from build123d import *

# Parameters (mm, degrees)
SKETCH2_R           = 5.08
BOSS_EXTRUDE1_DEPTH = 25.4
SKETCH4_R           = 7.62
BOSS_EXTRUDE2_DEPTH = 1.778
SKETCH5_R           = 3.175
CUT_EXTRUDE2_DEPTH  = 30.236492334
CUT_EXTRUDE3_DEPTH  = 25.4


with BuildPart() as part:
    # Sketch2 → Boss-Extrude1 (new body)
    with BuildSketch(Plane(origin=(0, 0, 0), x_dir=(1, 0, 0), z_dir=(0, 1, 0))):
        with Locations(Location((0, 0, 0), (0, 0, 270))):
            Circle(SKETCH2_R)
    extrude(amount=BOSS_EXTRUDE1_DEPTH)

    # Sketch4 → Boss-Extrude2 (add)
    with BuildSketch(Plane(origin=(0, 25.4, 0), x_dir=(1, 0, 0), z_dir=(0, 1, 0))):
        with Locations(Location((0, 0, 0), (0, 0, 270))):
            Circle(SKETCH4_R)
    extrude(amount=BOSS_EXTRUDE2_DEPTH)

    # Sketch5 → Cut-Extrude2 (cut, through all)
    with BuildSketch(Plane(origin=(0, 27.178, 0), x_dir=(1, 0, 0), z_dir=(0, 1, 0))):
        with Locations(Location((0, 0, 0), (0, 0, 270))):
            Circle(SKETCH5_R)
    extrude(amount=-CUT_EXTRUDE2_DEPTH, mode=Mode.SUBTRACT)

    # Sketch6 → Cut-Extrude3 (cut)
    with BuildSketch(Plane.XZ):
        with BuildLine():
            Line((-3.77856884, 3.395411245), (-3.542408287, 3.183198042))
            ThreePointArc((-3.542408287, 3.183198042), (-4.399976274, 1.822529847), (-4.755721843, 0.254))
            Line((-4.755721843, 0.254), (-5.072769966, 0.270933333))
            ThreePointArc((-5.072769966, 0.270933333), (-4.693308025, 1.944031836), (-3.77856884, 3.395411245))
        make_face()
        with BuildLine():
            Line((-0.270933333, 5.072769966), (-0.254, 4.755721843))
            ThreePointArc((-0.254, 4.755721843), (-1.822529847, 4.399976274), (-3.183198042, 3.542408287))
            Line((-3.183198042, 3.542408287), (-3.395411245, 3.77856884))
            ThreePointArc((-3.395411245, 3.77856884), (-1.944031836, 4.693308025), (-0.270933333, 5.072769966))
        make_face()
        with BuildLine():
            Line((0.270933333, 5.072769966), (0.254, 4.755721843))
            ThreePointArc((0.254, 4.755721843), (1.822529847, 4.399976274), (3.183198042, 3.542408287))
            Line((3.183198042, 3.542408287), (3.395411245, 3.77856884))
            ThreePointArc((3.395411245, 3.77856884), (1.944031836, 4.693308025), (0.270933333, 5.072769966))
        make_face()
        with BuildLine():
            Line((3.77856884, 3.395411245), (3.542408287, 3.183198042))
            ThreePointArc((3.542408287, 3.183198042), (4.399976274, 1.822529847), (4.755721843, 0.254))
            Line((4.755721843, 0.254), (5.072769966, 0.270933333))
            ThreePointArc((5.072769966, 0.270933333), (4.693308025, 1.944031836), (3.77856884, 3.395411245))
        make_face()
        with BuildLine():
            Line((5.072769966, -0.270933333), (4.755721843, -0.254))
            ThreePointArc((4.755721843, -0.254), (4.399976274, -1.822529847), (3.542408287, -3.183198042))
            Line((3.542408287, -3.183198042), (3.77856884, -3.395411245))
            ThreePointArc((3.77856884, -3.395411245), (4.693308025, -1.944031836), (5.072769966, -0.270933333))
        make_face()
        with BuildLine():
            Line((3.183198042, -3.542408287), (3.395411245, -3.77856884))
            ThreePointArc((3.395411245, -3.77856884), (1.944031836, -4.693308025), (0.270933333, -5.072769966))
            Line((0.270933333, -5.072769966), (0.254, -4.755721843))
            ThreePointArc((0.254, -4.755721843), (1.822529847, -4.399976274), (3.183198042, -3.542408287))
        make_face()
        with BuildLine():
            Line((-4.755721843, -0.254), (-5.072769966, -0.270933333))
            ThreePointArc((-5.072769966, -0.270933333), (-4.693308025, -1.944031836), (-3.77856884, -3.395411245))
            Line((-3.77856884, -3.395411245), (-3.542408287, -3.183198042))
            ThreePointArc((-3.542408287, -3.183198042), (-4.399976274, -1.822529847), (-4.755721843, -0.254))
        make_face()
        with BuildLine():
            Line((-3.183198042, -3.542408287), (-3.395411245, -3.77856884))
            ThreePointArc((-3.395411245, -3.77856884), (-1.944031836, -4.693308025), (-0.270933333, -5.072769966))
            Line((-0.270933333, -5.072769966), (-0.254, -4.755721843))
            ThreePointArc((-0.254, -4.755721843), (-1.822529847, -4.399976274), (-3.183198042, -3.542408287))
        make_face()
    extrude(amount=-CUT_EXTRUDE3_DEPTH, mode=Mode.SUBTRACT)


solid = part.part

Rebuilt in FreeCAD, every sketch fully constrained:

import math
import FreeCAD as App
import Part
import Sketcher
Q = App.Units.Quantity

doc = App.newDocument("Part")
body = doc.addObject("PartDesign::Body", "Body")

# Sketch on XZ plane
sketch1 = body.newObject("Sketcher::SketchObject", "Sketch")
sketch1.AttachmentSupport = (doc.getObject("XZ_Plane"), [""])
sketch1.MapMode = "FlatFace"
sketch1.addGeometry(Part.Circle(App.Vector(0, 0, 0), App.Vector(0, 0, 1), 5), False)
sketch1.addConstraint(Sketcher.Constraint("Coincident", 0, 3, -1, 1))
sketch1.addConstraint(Sketcher.Constraint("Diameter", 0, Q("0.4 in")))
pad1 = body.newObject("PartDesign::Pad", "Pad")
pad1.Profile = sketch1
pad1.Length = Q("1 in")
pad1.Reversed = True

# Sketch on XZ plane
sketch2 = body.newObject("Sketcher::SketchObject", "Sketch001")
sketch2.AttachmentSupport = (doc.getObject("XZ_Plane"), [""])
sketch2.MapMode = "FlatFace"
sketch2.AttachmentOffset = App.Placement(App.Vector(0, 0, -1 * 25.4), App.Rotation())
sketch2.addGeometry(Part.Circle(App.Vector(0, 0, 0), App.Vector(0, 0, 1), 8), False)
sketch2.addConstraint(Sketcher.Constraint("Coincident", 0, 3, -1, 1))
sketch2.addConstraint(Sketcher.Constraint("Diameter", 0, Q("0.6 in")))
pad2 = body.newObject("PartDesign::Pad", "Pad001")
pad2.Profile = sketch2
pad2.Length = Q("0.07 in")
pad2.Reversed = True

# Sketch on XZ plane
sketch3 = body.newObject("Sketcher::SketchObject", "Sketch002")
sketch3.AttachmentSupport = (doc.getObject("XZ_Plane"), [""])
sketch3.MapMode = "FlatFace"
sketch3.AttachmentOffset = App.Placement(App.Vector(0, 0, -1.07 * 25.4), App.Rotation())
sketch3.addGeometry(Part.Circle(App.Vector(0, 0, 0), App.Vector(0, 0, 1), 3.2), False)
sketch3.addConstraint(Sketcher.Constraint("Coincident", 0, 3, -1, 1))
sketch3.addConstraint(Sketcher.Constraint("Diameter", 0, Q("0.25 in")))
pocket1 = body.newObject("PartDesign::Pocket", "Pocket")
pocket1.Profile = sketch3
pocket1.Type = "ThroughAll"
pocket1.Reversed = True

# Sketch on XZ plane
sketch4 = body.newObject("Sketcher::SketchObject", "Sketch003")
sketch4.AttachmentSupport = (doc.getObject("XZ_Plane"), [""])
sketch4.MapMode = "FlatFace"
sketch4.addGeometry(Part.LineSegment(App.Vector(-3.54, 3.18, 0), App.Vector(-3.78, 3.4, 0)), False)
sketch4.addGeometry(Part.ArcOfCircle(Part.Circle(App.Vector(0, 0, 0), App.Vector(0, 0, 1), 5.08), math.radians(138), math.radians(177)), False)
sketch4.addGeometry(Part.LineSegment(App.Vector(-5.07, 0.27, 0), App.Vector(-4.76, 0.25, 0)), False)
sketch4.addGeometry(Part.ArcOfCircle(Part.Circle(App.Vector(0, 0, 0), App.Vector(0, 0, 1), 4.76), math.radians(138), math.radians(177)), False)
sketch4.addGeometry(Part.LineSegment(App.Vector(-0.25, 4.76, 0), App.Vector(-0.27, 5.07, 0)), False)
sketch4.addGeometry(Part.ArcOfCircle(Part.Circle(App.Vector(0, 0, 0), App.Vector(0, 0, 1), 5.08), math.radians(93), math.radians(132)), False)
sketch4.addGeometry(Part.LineSegment(App.Vector(-3.4, 3.78, 0), App.Vector(-3.18, 3.54, 0)), False)
sketch4.addGeometry(Part.ArcOfCircle(Part.Circle(App.Vector(0, 0, 0), App.Vector(0, 0, 1), 4.76), math.radians(93), math.radians(132)), False)
sketch4.addGeometry(Part.LineSegment(App.Vector(0.27, 5.07, 0), App.Vector(0.25, 4.76, 0)), False)
sketch4.addGeometry(Part.ArcOfCircle(Part.Circle(App.Vector(0, 0, 0), App.Vector(0, 0, 1), 4.76), math.radians(48), math.radians(87)), False)
sketch4.addGeometry(Part.LineSegment(App.Vector(3.18, 3.54, 0), App.Vector(3.4, 3.78, 0)), False)
sketch4.addGeometry(Part.ArcOfCircle(Part.Circle(App.Vector(0, 0, 0), App.Vector(0, 0, 1), 5.08), math.radians(48), math.radians(87)), False)
sketch4.addGeometry(Part.LineSegment(App.Vector(3.78, 3.4, 0), App.Vector(3.54, 3.18, 0)), False)
sketch4.addGeometry(Part.ArcOfCircle(Part.Circle(App.Vector(0, 0, 0), App.Vector(0, 0, 1), 4.76), math.radians(3), math.radians(42)), False)
sketch4.addGeometry(Part.LineSegment(App.Vector(4.76, 0.25, 0), App.Vector(5.07, 0.27, 0)), False)
sketch4.addGeometry(Part.ArcOfCircle(Part.Circle(App.Vector(0, 0, 0), App.Vector(0, 0, 1), 5.08), math.radians(3), math.radians(42)), False)
sketch4.addGeometry(Part.LineSegment(App.Vector(5.07, -0.27, 0), App.Vector(4.76, -0.25, 0)), False)
sketch4.addGeometry(Part.ArcOfCircle(Part.Circle(App.Vector(0, 0, 0), App.Vector(0, 0, 1), 4.76), math.radians(-42), math.radians(-3)), False)
sketch4.addGeometry(Part.LineSegment(App.Vector(3.54, -3.18, 0), App.Vector(3.78, -3.4, 0)), False)
sketch4.addGeometry(Part.ArcOfCircle(Part.Circle(App.Vector(0, 0, 0), App.Vector(0, 0, 1), 5.08), math.radians(-42), math.radians(-3)), False)
sketch4.addGeometry(Part.LineSegment(App.Vector(3.4, -3.78, 0), App.Vector(3.18, -3.54, 0)), False)
sketch4.addGeometry(Part.ArcOfCircle(Part.Circle(App.Vector(0, 0, 0), App.Vector(0, 0, 1), 4.76), math.radians(-87), math.radians(-48)), False)
sketch4.addGeometry(Part.LineSegment(App.Vector(0.25, -4.76, 0), App.Vector(0.27, -5.07, 0)), False)
sketch4.addGeometry(Part.ArcOfCircle(Part.Circle(App.Vector(0, 0, 0), App.Vector(0, 0, 1), 5.08), math.radians(-87), math.radians(-48)), False)
sketch4.addGeometry(Part.LineSegment(App.Vector(-4.76, -0.25, 0), App.Vector(-5.07, -0.27, 0)), False)
sketch4.addGeometry(Part.ArcOfCircle(Part.Circle(App.Vector(0, 0, 0), App.Vector(0, 0, 1), 5.08), math.radians(-177), math.radians(-138)), False)
sketch4.addGeometry(Part.LineSegment(App.Vector(-3.78, -3.4, 0), App.Vector(-3.54, -3.18, 0)), False)
sketch4.addGeometry(Part.ArcOfCircle(Part.Circle(App.Vector(0, 0, 0), App.Vector(0, 0, 1), 4.76), math.radians(-177), math.radians(-138)), False)
sketch4.addGeometry(Part.LineSegment(App.Vector(-3.18, -3.54, 0), App.Vector(-3.4, -3.78, 0)), False)
sketch4.addGeometry(Part.ArcOfCircle(Part.Circle(App.Vector(0, 0, 0), App.Vector(0, 0, 1), 5.08), math.radians(-132), math.radians(-93)), False)
sketch4.addGeometry(Part.LineSegment(App.Vector(-0.27, -5.07, 0), App.Vector(-0.25, -4.76, 0)), False)
sketch4.addGeometry(Part.ArcOfCircle(Part.Circle(App.Vector(0, 0, 0), App.Vector(0, 0, 1), 4.76), math.radians(-132), math.radians(-93)), False)
sketch4.addConstraint(Sketcher.Constraint("Coincident", 0, 2, 1, 1))
sketch4.addConstraint(Sketcher.Constraint("Coincident", 1, 2, 2, 1))
sketch4.addConstraint(Sketcher.Constraint("Coincident", 2, 2, 3, 2))
sketch4.addConstraint(Sketcher.Constraint("Coincident", 3, 1, 0, 1))
sketch4.addConstraint(Sketcher.Constraint("Coincident", 4, 2, 5, 1))
sketch4.addConstraint(Sketcher.Constraint("Coincident", 5, 2, 6, 1))
sketch4.addConstraint(Sketcher.Constraint("Coincident", 6, 2, 7, 2))
sketch4.addConstraint(Sketcher.Constraint("Coincident", 7, 1, 4, 1))
sketch4.addConstraint(Sketcher.Constraint("Coincident", 8, 2, 9, 2))
sketch4.addConstraint(Sketcher.Constraint("Coincident", 9, 1, 10, 1))
sketch4.addConstraint(Sketcher.Constraint("Coincident", 10, 2, 11, 1))
sketch4.addConstraint(Sketcher.Constraint("Coincident", 11, 2, 8, 1))
sketch4.addConstraint(Sketcher.Constraint("Coincident", 12, 2, 13, 2))
sketch4.addConstraint(Sketcher.Constraint("Coincident", 13, 1, 14, 1))
sketch4.addConstraint(Sketcher.Constraint("Coincident", 14, 2, 15, 1))
sketch4.addConstraint(Sketcher.Constraint("Coincident", 15, 2, 12, 1))
sketch4.addConstraint(Sketcher.Constraint("Coincident", 16, 2, 17, 2))
sketch4.addConstraint(Sketcher.Constraint("Coincident", 17, 1, 18, 1))
sketch4.addConstraint(Sketcher.Constraint("Coincident", 18, 2, 19, 1))
sketch4.addConstraint(Sketcher.Constraint("Coincident", 19, 2, 16, 1))
sketch4.addConstraint(Sketcher.Constraint("Coincident", 20, 2, 21, 2))
sketch4.addConstraint(Sketcher.Constraint("Coincident", 21, 1, 22, 1))
sketch4.addConstraint(Sketcher.Constraint("Coincident", 22, 2, 23, 1))
sketch4.addConstraint(Sketcher.Constraint("Coincident", 23, 2, 20, 1))
sketch4.addConstraint(Sketcher.Constraint("Coincident", 24, 2, 25, 1))
sketch4.addConstraint(Sketcher.Constraint("Coincident", 25, 2, 26, 1))
sketch4.addConstraint(Sketcher.Constraint("Coincident", 26, 2, 27, 2))
sketch4.addConstraint(Sketcher.Constraint("Coincident", 27, 1, 24, 1))
sketch4.addConstraint(Sketcher.Constraint("Coincident", 28, 2, 29, 1))
sketch4.addConstraint(Sketcher.Constraint("Coincident", 29, 2, 30, 1))
sketch4.addConstraint(Sketcher.Constraint("Coincident", 30, 2, 31, 2))
sketch4.addConstraint(Sketcher.Constraint("Coincident", 31, 1, 28, 1))
sketch4.addConstraint(Sketcher.Constraint("Coincident", 1, 3, -1, 1))
sketch4.addConstraint(Sketcher.Constraint("Coincident", 3, 3, -1, 1))
sketch4.addConstraint(Sketcher.Constraint("Coincident", 5, 3, -1, 1))
sketch4.addConstraint(Sketcher.Constraint("Coincident", 7, 3, -1, 1))
sketch4.addConstraint(Sketcher.Constraint("Coincident", 9, 3, -1, 1))
sketch4.addConstraint(Sketcher.Constraint("Coincident", 11, 3, -1, 1))
sketch4.addConstraint(Sketcher.Constraint("Coincident", 13, 3, -1, 1))
sketch4.addConstraint(Sketcher.Constraint("Coincident", 15, 3, -1, 1))
sketch4.addConstraint(Sketcher.Constraint("Coincident", 17, 3, -1, 1))
sketch4.addConstraint(Sketcher.Constraint("Coincident", 19, 3, -1, 1))
sketch4.addConstraint(Sketcher.Constraint("Coincident", 21, 3, -1, 1))
sketch4.addConstraint(Sketcher.Constraint("Coincident", 23, 3, -1, 1))
sketch4.addConstraint(Sketcher.Constraint("Coincident", 25, 3, -1, 1))
sketch4.addConstraint(Sketcher.Constraint("Coincident", 27, 3, -1, 1))
sketch4.addConstraint(Sketcher.Constraint("Coincident", 29, 3, -1, 1))
sketch4.addConstraint(Sketcher.Constraint("Coincident", 31, 3, -1, 1))
sketch4.addConstraint(Sketcher.Constraint("Equal", 1, 5))
sketch4.addConstraint(Sketcher.Constraint("Equal", 3, 7))
sketch4.addConstraint(Sketcher.Constraint("Equal", 7, 9))
sketch4.addConstraint(Sketcher.Constraint("Equal", 5, 11))
sketch4.addConstraint(Sketcher.Constraint("Equal", 9, 13))
sketch4.addConstraint(Sketcher.Constraint("Equal", 11, 15))
sketch4.addConstraint(Sketcher.Constraint("Equal", 13, 17))
sketch4.addConstraint(Sketcher.Constraint("Equal", 15, 19))
sketch4.addConstraint(Sketcher.Constraint("Equal", 17, 21))
sketch4.addConstraint(Sketcher.Constraint("Equal", 19, 23))
sketch4.addConstraint(Sketcher.Constraint("Equal", 23, 25))
sketch4.addConstraint(Sketcher.Constraint("Equal", 21, 27))
sketch4.addConstraint(Sketcher.Constraint("Equal", 25, 29))
sketch4.addConstraint(Sketcher.Constraint("Equal", 27, 31))
sketch4.addConstraint(Sketcher.Constraint("Perpendicular", 2, 8))
sketch4.addConstraint(Sketcher.Constraint("Perpendicular", 0, 10))
sketch4.addConstraint(Sketcher.Constraint("Perpendicular", 6, 12))
sketch4.addConstraint(Sketcher.Constraint("Perpendicular", 4, 14))
sketch4.addConstraint(Sketcher.Constraint("Perpendicular", 8, 16))
sketch4.addConstraint(Sketcher.Constraint("Perpendicular", 10, 18))
sketch4.addConstraint(Sketcher.Constraint("Perpendicular", 12, 20))
sketch4.addConstraint(Sketcher.Constraint("Perpendicular", 14, 22))
sketch4.addConstraint(Sketcher.Constraint("Perpendicular", 22, 24))
sketch4.addConstraint(Sketcher.Constraint("Perpendicular", 20, 26))
sketch4.addConstraint(Sketcher.Constraint("Perpendicular", 18, 28))
sketch4.addConstraint(Sketcher.Constraint("Perpendicular", 16, 30))
sketch4.addConstraint(Sketcher.Constraint("Horizontal", 7, 1, 8, 2))
sketch4.addConstraint(Sketcher.Constraint("Horizontal", 6, 2, 9, 1))
sketch4.addConstraint(Sketcher.Constraint("Horizontal", 5, 2, 10, 2))
sketch4.addConstraint(Sketcher.Constraint("Horizontal", 4, 2, 11, 2))
sketch4.addConstraint(Sketcher.Constraint("Horizontal", 3, 1, 12, 2))
sketch4.addConstraint(Sketcher.Constraint("Horizontal", 2, 2, 13, 1))
sketch4.addConstraint(Sketcher.Constraint("Horizontal", 19, 2, 24, 2))
sketch4.addConstraint(Sketcher.Constraint("Horizontal", 18, 2, 25, 2))
sketch4.addConstraint(Sketcher.Constraint("Horizontal", 23, 2, 28, 2))
sketch4.addConstraint(Sketcher.Constraint("Horizontal", 22, 2, 29, 2))
sketch4.addConstraint(Sketcher.Constraint("Vertical", 13, 1, 16, 2))
sketch4.addConstraint(Sketcher.Constraint("Vertical", 12, 2, 17, 1))
sketch4.addConstraint(Sketcher.Constraint("Vertical", 9, 1, 20, 2))
sketch4.addConstraint(Sketcher.Constraint("Vertical", 8, 2, 21, 1))
sketch4.addConstraint(Sketcher.Constraint("Radius", 1, Q("0.2 in")))
sketch4.addConstraint(Sketcher.Constraint("Radius", 3, Q("0.1875 in")))
sketch4.addConstraint(Sketcher.Constraint("DistanceY", -1, 1, 2, 2, Q("0.01 in")))
sketch4.addConstraint(Sketcher.Constraint("DistanceX", 7, 1, -1, 1, Q("0.01 in")))
sketch4.addConstraint(Sketcher.Constraint("DistanceY", -1, 1, 3, 1, Q("3.183198 mm")))
sketch4.addConstraint(Sketcher.Constraint("DistanceX", 6, 2, -1, 1, Q("3.183198 mm")))
sketch4.addConstraint(Sketcher.Constraint("DistanceX", 1, 2, 0, 2, Q("1.294201 mm")))
sketch4.addConstraint(Sketcher.Constraint("DistanceX", 0, 2, -1, 1, Q("3.778569 mm")))
pocket2 = body.newObject("PartDesign::Pocket", "Pocket001")
pocket2.Profile = sketch4
pocket2.Length = Q("1 in")

doc.recompute()
